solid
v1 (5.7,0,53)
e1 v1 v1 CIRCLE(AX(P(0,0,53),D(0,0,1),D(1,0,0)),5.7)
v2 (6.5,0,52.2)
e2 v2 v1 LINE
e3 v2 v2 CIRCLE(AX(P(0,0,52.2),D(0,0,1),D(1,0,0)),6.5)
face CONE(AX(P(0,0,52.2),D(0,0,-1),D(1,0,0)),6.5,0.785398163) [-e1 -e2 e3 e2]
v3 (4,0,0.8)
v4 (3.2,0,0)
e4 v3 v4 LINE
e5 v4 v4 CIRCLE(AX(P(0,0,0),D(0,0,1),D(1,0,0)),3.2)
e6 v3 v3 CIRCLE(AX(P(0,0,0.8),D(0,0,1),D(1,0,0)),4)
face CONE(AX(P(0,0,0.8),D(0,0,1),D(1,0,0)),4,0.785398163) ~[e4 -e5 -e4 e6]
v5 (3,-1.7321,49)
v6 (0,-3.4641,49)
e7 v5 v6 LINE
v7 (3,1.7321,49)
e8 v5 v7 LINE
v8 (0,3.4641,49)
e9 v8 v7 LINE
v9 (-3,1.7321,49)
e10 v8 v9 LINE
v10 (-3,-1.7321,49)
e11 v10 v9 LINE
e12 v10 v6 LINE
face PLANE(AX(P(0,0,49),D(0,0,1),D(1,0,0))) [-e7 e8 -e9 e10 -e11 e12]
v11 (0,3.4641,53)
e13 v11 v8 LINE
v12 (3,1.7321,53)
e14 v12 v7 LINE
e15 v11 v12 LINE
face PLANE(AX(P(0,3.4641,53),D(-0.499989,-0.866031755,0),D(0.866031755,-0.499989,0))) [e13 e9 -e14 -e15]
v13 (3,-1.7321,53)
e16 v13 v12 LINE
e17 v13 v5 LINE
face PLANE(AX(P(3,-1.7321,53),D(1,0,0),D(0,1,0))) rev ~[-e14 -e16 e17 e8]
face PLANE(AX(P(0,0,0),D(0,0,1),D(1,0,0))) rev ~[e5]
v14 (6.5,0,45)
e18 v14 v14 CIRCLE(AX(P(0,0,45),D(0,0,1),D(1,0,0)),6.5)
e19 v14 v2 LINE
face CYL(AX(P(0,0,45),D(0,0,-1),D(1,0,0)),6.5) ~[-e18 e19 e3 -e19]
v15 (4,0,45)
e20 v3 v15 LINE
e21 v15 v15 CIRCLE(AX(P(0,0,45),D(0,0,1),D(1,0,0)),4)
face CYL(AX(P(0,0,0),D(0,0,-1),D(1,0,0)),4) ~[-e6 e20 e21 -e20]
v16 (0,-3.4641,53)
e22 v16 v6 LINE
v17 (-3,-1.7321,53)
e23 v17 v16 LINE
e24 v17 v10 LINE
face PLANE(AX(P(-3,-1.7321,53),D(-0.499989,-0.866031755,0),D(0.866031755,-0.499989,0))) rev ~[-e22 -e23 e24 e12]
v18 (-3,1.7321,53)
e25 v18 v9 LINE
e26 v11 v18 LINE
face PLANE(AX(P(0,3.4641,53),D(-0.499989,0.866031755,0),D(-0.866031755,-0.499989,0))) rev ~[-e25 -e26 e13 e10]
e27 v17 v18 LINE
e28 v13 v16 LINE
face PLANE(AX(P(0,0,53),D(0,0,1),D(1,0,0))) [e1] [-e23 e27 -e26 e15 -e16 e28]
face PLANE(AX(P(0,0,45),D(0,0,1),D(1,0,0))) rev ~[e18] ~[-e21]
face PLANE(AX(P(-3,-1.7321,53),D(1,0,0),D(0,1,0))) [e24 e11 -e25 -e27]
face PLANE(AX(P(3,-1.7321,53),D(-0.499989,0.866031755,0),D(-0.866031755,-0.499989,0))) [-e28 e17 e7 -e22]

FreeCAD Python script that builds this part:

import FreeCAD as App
import Part
import Sketcher
from FreeCAD import Vector
Q = App.Units.Quantity


def edges_at(feature, points):
    """Names of the edges that pass closest to the given points."""
    edges = feature.Shape.Edges
    near = lambda p: min(range(len(edges)), key=lambda i: edges[i].distToShape(Part.Vertex(*p))[0])
    return sorted({f"Edge{near(p) + 1}" for p in points})

doc = App.newDocument("Part")
params = doc.addObject("Spreadsheet::Sheet", "Params")
for row, (alias, value) in enumerate([
    ("sketch1_diameter", "8 mm"),
    ("pad1_length", "45 mm"),
    ("sketch2_diameter", "13 mm"),
    ("pad2_length", "8 mm"),
    ("pocket1_length", "4 mm"),
    ("chamfer_size", "0.8 mm"),
], start=1):
    params.set(f"A{row}", alias)
    params.set(f"B{row}", "=" + value)
    params.setAlias(f"B{row}", alias)

body = doc.addObject("PartDesign::Body", "Body")

# Sketch on XY plane
sketch1 = doc.addObject("Sketcher::SketchObject", "Sketch")
body.addObject(sketch1)
sketch1.AttachmentSupport = (doc.XY_Plane, [""])
sketch1.MapMode = "FlatFace"
sketch1.addGeometry(Part.Circle(Vector(0, 0, 0), Vector(0, 0, 1), 4), False)
sketch1.addConstraint([
    Sketcher.Constraint("Coincident", 0, 3, -1, 1),
    Sketcher.Constraint("Diameter", 0, Q("8 mm")),
])
sketch1.setExpression("Constraints[1]", "Params.sketch1_diameter")
pad1 = doc.addObject("PartDesign::Pad", "Pad")
body.addObject(pad1)
pad1.Profile = sketch1
pad1.setExpression("Length", "Params.pad1_length")

# Sketch on XY plane
sketch2 = doc.addObject("Sketcher::SketchObject", "Sketch001")
body.addObject(sketch2)
sketch2.AttachmentSupport = (doc.XY_Plane, [""])
sketch2.MapMode = "FlatFace"
sketch2.AttachmentOffset = App.Placement(Vector(0, 0, 45), App.Rotation())
sketch2.addGeometry(Part.Circle(Vector(0, 0, 0), Vector(0, 0, 1), 6.5), False)
sketch2.addConstraint([
    Sketcher.Constraint("Coincident", 0, 3, -1, 1),
    Sketcher.Constraint("Diameter", 0, Q("13 mm")),
])
sketch2.setExpression("Constraints[1]", "Params.sketch2_diameter")
pad2 = doc.addObject("PartDesign::Pad", "Pad001")
body.addObject(pad2)
pad2.Profile = sketch2
pad2.setExpression("Length", "Params.pad2_length")

# Sketch on XY plane
sketch3 = doc.addObject("Sketcher::SketchObject", "Sketch002")
body.addObject(sketch3)
sketch3.AttachmentSupport = (doc.XY_Plane, [""])
sketch3.MapMode = "FlatFace"
sketch3.AttachmentOffset = App.Placement(Vector(0, 0, 53), App.Rotation())
sketch3.addGeometry([
    Part.LineSegment(Vector(3, 1.7321, 0), Vector(0, 3.4641, 0)),  # 0
    Part.LineSegment(Vector(0, 3.4641, 0), Vector(-3, 1.7321, 0)),  # 1
    Part.LineSegment(Vector(-3, 1.7321, 0), Vector(-3, -1.7321, 0)),  # 2
    Part.LineSegment(Vector(-3, -1.7321, 0), Vector(0, -3.4641, 0)),  # 3
    Part.LineSegment(Vector(0, -3.4641, 0), Vector(3, -1.7321, 0)),  # 4
    Part.LineSegment(Vector(3, -1.7321, 0), Vector(3, 1.7321, 0)),  # 5
], False)
sketch3.addConstraint([
    Sketcher.Constraint("Coincident", 0, 2, 1, 1),
    Sketcher.Constraint("Coincident", 1, 2, 2, 1),
    Sketcher.Constraint("Coincident", 2, 2, 3, 1),
    Sketcher.Constraint("Coincident", 3, 2, 4, 1),
    Sketcher.Constraint("Coincident", 4, 2, 5, 1),
    Sketcher.Constraint("Coincident", 5, 2, 0, 1),
    Sketcher.Constraint("Vertical", 2),
    Sketcher.Constraint("Vertical", 5),
    Sketcher.Constraint("Symmetric", 0, 2, 3, 2, -1, 1),
    Sketcher.Constraint("Symmetric", 1, 2, 4, 2, -1, 1),
    Sketcher.Constraint("PointOnObject", 0, 2, -2),
    Sketcher.Constraint("Parallel", 0, 3),
    Sketcher.Constraint("Horizontal", 2, 2, 4, 2),
    Sketcher.Constraint("DistanceX", 2, 2, 4, 2, Q("6 mm")),
    Sketcher.Constraint("Angle", 0, Q("150.0007 deg")),
    Sketcher.Constraint("DistanceY", 2, 2, 2, 1, Q("3.4642 mm")),
])
pocket1 = doc.addObject("PartDesign::Pocket", "Pocket")
body.addObject(pocket1)
pocket1.Profile = sketch3
pocket1.setExpression("Length", "Params.pocket1_length")
doc.recompute()

chamfer = doc.addObject("PartDesign::Chamfer", "Chamfer")
body.addObject(chamfer)
chamfer.Base = (pocket1, edges_at(pocket1, [(-6.5, 0, 53), (-4, 0, 0)]))
chamfer.setExpression("Size", "Params.chamfer_size")

doc.recompute()
